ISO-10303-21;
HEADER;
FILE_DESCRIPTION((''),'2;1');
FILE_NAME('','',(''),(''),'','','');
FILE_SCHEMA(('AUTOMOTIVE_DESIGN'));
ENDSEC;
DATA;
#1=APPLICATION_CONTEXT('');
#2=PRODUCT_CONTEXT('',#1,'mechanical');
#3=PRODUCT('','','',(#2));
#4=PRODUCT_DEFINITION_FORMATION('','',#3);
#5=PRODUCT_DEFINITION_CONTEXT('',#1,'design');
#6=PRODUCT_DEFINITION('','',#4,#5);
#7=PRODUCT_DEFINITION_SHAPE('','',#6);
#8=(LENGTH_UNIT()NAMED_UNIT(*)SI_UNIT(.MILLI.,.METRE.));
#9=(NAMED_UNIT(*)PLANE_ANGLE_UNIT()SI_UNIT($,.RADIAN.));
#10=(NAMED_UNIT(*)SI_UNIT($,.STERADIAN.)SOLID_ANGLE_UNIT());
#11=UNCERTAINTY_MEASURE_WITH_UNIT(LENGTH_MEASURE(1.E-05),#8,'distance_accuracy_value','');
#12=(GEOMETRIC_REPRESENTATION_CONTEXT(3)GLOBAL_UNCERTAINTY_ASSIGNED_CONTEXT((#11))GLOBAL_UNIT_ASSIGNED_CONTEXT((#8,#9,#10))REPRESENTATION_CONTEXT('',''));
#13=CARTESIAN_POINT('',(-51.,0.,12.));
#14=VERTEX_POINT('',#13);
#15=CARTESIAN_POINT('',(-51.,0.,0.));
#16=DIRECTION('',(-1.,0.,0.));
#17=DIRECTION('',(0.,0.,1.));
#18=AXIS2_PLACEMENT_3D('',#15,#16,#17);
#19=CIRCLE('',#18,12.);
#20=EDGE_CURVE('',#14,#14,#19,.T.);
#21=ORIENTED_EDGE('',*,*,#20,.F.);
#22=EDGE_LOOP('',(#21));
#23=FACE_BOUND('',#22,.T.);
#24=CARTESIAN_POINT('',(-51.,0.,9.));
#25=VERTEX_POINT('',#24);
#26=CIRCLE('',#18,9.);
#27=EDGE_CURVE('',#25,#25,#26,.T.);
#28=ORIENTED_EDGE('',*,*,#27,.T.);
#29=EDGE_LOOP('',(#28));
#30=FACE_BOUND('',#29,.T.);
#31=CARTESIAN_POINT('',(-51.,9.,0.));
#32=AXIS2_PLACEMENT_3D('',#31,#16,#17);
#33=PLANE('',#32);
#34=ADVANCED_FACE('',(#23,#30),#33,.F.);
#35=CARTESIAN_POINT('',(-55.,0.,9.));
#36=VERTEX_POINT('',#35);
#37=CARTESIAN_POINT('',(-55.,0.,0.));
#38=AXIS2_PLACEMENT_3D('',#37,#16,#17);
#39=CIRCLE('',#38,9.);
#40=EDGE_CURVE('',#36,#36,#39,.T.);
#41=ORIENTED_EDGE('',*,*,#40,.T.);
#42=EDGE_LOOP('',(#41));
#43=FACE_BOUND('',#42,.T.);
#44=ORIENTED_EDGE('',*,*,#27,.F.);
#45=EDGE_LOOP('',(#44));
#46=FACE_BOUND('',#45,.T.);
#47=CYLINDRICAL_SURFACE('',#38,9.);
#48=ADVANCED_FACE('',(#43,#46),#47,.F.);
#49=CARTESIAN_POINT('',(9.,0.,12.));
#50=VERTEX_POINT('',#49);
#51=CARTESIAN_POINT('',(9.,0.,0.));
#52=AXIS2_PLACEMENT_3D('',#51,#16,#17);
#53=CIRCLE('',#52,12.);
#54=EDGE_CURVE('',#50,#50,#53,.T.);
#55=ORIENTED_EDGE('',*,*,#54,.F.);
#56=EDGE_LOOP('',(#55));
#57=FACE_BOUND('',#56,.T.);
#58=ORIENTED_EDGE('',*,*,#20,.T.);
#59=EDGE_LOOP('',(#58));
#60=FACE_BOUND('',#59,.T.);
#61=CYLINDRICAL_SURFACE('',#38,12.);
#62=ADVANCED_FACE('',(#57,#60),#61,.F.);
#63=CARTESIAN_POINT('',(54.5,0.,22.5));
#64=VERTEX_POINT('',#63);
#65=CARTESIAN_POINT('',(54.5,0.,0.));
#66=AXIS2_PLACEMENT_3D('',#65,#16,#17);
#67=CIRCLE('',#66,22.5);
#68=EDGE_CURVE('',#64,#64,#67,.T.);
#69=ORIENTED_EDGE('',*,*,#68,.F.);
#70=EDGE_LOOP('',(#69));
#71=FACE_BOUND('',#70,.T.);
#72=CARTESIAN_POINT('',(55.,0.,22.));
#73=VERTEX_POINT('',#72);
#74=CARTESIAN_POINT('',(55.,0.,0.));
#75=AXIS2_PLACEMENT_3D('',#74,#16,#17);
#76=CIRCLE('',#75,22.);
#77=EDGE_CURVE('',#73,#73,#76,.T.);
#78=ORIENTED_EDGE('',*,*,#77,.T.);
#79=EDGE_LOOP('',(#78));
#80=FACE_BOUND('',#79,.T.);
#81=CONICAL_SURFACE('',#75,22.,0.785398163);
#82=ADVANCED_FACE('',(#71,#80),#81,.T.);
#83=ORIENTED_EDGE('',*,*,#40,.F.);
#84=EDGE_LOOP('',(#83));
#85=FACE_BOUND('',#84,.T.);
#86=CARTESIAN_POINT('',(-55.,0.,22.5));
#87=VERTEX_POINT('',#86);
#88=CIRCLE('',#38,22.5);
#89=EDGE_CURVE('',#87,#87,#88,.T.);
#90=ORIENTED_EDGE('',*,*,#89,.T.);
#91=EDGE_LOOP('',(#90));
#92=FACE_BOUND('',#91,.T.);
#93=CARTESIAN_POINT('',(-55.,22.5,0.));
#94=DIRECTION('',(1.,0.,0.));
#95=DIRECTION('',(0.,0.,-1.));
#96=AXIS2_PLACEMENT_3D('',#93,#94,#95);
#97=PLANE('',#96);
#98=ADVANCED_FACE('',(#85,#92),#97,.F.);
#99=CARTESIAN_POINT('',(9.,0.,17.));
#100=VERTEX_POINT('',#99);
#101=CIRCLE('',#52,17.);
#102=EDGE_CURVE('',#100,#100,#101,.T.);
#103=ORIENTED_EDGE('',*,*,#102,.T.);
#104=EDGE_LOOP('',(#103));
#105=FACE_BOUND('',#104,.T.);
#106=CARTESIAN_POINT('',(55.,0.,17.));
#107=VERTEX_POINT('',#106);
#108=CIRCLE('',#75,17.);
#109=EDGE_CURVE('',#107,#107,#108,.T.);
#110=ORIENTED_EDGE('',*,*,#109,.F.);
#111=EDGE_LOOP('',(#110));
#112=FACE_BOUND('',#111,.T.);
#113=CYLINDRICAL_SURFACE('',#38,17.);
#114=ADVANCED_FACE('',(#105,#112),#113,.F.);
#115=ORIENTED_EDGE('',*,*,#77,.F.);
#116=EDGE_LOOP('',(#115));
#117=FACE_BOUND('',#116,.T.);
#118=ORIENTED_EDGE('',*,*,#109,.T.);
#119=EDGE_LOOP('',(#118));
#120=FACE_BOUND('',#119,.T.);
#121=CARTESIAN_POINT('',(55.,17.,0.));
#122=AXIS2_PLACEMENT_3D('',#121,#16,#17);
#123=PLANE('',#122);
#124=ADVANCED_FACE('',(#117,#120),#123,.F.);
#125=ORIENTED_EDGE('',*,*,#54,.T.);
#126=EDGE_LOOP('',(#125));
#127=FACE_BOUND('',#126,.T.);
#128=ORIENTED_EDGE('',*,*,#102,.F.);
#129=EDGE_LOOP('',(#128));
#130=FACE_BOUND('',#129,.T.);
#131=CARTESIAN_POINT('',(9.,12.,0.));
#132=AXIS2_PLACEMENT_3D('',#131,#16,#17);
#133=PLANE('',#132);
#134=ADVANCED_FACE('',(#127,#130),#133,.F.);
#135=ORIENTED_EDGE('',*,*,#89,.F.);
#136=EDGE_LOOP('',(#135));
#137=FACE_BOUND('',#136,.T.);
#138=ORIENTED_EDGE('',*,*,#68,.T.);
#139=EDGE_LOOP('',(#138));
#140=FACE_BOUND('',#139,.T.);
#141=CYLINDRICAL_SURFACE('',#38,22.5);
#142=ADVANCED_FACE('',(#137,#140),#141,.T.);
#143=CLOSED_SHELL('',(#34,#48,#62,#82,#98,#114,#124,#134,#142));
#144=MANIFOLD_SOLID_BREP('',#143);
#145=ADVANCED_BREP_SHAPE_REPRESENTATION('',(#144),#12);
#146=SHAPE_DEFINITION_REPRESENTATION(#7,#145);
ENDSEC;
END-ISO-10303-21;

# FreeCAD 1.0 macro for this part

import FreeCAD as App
import Part
import Sketcher

V = App.Vector
Q = App.Units.Quantity


def add_polygon(sketch, points):
    """Adds a closed chain of lines whose ends are joined by coincident constraints."""
    first, n = sketch.GeometryCount, len(points)
    for a, b in zip(points, points[1:] + points[:1]):
        sketch.addGeometry(Part.LineSegment(App.Vector(*a, 0), App.Vector(*b, 0)), False)
    for i in range(n):
        sketch.addConstraint(Sketcher.Constraint("Coincident", first + i, 2, first + (i + 1) % n, 1))

doc = App.newDocument("Part")
body = doc.addObject("PartDesign::Body", "Body")

# Sketch on XY plane
sketch1 = body.newObject("Sketcher::SketchObject", "Sketch")
sketch1.AttachmentSupport = (doc.getObject("XY_Plane"), [""])
sketch1.MapMode = "FlatFace"
add_polygon(sketch1, [(-55, 9), (-51, 9), (-51, 12), (9, 12), (9, 17), (55, 17), (55, 22), (54.5, 22.5), (-55, 22.5)])  # lines 0-8
sketch1.addConstraint(Sketcher.Constraint("Horizontal", 0))
sketch1.addConstraint(Sketcher.Constraint("Vertical", 1))
sketch1.addConstraint(Sketcher.Constraint("Horizontal", 2))
sketch1.addConstraint(Sketcher.Constraint("Vertical", 3))
sketch1.addConstraint(Sketcher.Constraint("Horizontal", 4))
sketch1.addConstraint(Sketcher.Constraint("Vertical", 5))
sketch1.addConstraint(Sketcher.Constraint("Horizontal", 7))
sketch1.addConstraint(Sketcher.Constraint("Vertical", 8))
sketch1.addConstraint(Sketcher.Constraint("Equal", 3, 5))
sketch1.addConstraint(Sketcher.Constraint("DistanceX", 0, 1, 0, 2, Q("4 mm")))
sketch1.addConstraint(Sketcher.Constraint("DistanceX", 2, 1, 2, 2, Q("60 mm")))
sketch1.addConstraint(Sketcher.Constraint("DistanceX", 4, 1, 4, 2, Q("46 mm")))
sketch1.addConstraint(Sketcher.Constraint("DistanceY", 1, 1, 1, 2, Q("3 mm")))
sketch1.addConstraint(Sketcher.Constraint("DistanceY", 3, 1, 3, 2, Q("5 mm")))
sketch1.addConstraint(Sketcher.Constraint("Angle", 6, Q("135 deg")))
sketch1.addConstraint(Sketcher.Constraint("DistanceX", 7, 2, 7, 1, Q("109.5 mm")))
sketch1.addConstraint(Sketcher.Constraint("DistanceX", 0, 2, -1, 1, Q("51 mm")))
sketch1.addConstraint(Sketcher.Constraint("DistanceY", -1, 1, 0, 2, Q("9 mm")))
revolution = body.newObject("PartDesign::Revolution", "Revolution")
revolution.Profile = sketch1
revolution.ReferenceAxis = (sketch1, ["H_Axis"])
revolution.Angle = 360

doc.recompute()
